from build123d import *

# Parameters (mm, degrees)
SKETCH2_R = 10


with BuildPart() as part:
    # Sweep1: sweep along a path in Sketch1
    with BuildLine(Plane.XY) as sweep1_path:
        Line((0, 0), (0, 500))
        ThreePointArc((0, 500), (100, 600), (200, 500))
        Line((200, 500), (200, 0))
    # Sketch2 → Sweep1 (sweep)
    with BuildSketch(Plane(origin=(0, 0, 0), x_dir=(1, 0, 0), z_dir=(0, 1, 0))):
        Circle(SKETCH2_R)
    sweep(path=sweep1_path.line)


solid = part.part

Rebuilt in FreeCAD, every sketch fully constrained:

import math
import FreeCAD as App
import Part
import Sketcher
from FreeCAD import Vector

doc = App.newDocument("Part")
params = doc.addObject("Spreadsheet::Sheet", "Params")
for row, (alias, value) in enumerate([
    ("sketch1_diameter", "20 mm"),
    ("sketch2_radius", "100 mm"),
    ("sketch2_height", "500 mm"),
], start=1):
    params.set(f"A{row}", alias)
    params.set(f"B{row}", "=" + value)
    params.setAlias(f"B{row}", alias)

body = doc.addObject("PartDesign::Body", "Body")

# Sketch on XZ plane
sketch1 = doc.addObject("Sketcher::SketchObject", "Sketch")
body.addObject(sketch1)
sketch1.AttachmentSupport = (doc.XZ_Plane, [""])
sketch1.MapMode = "FlatFace"
sketch1.addGeometry(Part.Circle(Vector(0, 0, 0), Vector(0, 0, 1), 10), False)
sketch1.addConstraint([
    Sketcher.Constraint("Coincident", 0, 3, -1, 1),
    Sketcher.Constraint("Diameter", 0, 20.0),
])
sketch1.setExpression("Constraints[1]", "Params.sketch1_diameter")

# Sketch on XY plane
sketch2 = doc.addObject("Sketcher::SketchObject", "Sketch001")
body.addObject(sketch2)
sketch2.AttachmentSupport = (doc.XY_Plane, [""])
sketch2.MapMode = "FlatFace"
sketch2.addGeometry([
    Part.LineSegment(Vector(0, 0, 0), Vector(0, 500, 0)),
    Part.ArcOfCircle(Part.Circle(Vector(100, 500, 0), Vector(0, 0, 1), 100), math.radians(0), math.radians(180)),
    Part.LineSegment(Vector(200, 500, 0), Vector(200, 0, 0)),
], False)
sketch2.addConstraint([
    Sketcher.Constraint("Tangent", 0, 2, 1, 2),
    Sketcher.Constraint("Tangent", 1, 1, 2, 1),
    Sketcher.Constraint("Vertical", 0),
    Sketcher.Constraint("Vertical", 2),
    Sketcher.Constraint("Coincident", 0, 1, -1, 1),
    Sketcher.Constraint("PointOnObject", 2, 2, -1),
    Sketcher.Constraint("Radius", 1, 100.0),
    Sketcher.Constraint("DistanceY", 0, 1, 0, 2, 500.0),
])
sketch2.setExpression("Constraints[6]", "Params.sketch2_radius")
sketch2.setExpression("Constraints[7]", "Params.sketch2_height")
doc.recompute()

additivepipe = doc.addObject("PartDesign::AdditivePipe", "AdditivePipe")
body.addObject(additivepipe)
additivepipe.Profile = sketch1
additivepipe.Spine = (sketch2, ["Edge1", "Edge2", "Edge3"])

doc.recompute()
